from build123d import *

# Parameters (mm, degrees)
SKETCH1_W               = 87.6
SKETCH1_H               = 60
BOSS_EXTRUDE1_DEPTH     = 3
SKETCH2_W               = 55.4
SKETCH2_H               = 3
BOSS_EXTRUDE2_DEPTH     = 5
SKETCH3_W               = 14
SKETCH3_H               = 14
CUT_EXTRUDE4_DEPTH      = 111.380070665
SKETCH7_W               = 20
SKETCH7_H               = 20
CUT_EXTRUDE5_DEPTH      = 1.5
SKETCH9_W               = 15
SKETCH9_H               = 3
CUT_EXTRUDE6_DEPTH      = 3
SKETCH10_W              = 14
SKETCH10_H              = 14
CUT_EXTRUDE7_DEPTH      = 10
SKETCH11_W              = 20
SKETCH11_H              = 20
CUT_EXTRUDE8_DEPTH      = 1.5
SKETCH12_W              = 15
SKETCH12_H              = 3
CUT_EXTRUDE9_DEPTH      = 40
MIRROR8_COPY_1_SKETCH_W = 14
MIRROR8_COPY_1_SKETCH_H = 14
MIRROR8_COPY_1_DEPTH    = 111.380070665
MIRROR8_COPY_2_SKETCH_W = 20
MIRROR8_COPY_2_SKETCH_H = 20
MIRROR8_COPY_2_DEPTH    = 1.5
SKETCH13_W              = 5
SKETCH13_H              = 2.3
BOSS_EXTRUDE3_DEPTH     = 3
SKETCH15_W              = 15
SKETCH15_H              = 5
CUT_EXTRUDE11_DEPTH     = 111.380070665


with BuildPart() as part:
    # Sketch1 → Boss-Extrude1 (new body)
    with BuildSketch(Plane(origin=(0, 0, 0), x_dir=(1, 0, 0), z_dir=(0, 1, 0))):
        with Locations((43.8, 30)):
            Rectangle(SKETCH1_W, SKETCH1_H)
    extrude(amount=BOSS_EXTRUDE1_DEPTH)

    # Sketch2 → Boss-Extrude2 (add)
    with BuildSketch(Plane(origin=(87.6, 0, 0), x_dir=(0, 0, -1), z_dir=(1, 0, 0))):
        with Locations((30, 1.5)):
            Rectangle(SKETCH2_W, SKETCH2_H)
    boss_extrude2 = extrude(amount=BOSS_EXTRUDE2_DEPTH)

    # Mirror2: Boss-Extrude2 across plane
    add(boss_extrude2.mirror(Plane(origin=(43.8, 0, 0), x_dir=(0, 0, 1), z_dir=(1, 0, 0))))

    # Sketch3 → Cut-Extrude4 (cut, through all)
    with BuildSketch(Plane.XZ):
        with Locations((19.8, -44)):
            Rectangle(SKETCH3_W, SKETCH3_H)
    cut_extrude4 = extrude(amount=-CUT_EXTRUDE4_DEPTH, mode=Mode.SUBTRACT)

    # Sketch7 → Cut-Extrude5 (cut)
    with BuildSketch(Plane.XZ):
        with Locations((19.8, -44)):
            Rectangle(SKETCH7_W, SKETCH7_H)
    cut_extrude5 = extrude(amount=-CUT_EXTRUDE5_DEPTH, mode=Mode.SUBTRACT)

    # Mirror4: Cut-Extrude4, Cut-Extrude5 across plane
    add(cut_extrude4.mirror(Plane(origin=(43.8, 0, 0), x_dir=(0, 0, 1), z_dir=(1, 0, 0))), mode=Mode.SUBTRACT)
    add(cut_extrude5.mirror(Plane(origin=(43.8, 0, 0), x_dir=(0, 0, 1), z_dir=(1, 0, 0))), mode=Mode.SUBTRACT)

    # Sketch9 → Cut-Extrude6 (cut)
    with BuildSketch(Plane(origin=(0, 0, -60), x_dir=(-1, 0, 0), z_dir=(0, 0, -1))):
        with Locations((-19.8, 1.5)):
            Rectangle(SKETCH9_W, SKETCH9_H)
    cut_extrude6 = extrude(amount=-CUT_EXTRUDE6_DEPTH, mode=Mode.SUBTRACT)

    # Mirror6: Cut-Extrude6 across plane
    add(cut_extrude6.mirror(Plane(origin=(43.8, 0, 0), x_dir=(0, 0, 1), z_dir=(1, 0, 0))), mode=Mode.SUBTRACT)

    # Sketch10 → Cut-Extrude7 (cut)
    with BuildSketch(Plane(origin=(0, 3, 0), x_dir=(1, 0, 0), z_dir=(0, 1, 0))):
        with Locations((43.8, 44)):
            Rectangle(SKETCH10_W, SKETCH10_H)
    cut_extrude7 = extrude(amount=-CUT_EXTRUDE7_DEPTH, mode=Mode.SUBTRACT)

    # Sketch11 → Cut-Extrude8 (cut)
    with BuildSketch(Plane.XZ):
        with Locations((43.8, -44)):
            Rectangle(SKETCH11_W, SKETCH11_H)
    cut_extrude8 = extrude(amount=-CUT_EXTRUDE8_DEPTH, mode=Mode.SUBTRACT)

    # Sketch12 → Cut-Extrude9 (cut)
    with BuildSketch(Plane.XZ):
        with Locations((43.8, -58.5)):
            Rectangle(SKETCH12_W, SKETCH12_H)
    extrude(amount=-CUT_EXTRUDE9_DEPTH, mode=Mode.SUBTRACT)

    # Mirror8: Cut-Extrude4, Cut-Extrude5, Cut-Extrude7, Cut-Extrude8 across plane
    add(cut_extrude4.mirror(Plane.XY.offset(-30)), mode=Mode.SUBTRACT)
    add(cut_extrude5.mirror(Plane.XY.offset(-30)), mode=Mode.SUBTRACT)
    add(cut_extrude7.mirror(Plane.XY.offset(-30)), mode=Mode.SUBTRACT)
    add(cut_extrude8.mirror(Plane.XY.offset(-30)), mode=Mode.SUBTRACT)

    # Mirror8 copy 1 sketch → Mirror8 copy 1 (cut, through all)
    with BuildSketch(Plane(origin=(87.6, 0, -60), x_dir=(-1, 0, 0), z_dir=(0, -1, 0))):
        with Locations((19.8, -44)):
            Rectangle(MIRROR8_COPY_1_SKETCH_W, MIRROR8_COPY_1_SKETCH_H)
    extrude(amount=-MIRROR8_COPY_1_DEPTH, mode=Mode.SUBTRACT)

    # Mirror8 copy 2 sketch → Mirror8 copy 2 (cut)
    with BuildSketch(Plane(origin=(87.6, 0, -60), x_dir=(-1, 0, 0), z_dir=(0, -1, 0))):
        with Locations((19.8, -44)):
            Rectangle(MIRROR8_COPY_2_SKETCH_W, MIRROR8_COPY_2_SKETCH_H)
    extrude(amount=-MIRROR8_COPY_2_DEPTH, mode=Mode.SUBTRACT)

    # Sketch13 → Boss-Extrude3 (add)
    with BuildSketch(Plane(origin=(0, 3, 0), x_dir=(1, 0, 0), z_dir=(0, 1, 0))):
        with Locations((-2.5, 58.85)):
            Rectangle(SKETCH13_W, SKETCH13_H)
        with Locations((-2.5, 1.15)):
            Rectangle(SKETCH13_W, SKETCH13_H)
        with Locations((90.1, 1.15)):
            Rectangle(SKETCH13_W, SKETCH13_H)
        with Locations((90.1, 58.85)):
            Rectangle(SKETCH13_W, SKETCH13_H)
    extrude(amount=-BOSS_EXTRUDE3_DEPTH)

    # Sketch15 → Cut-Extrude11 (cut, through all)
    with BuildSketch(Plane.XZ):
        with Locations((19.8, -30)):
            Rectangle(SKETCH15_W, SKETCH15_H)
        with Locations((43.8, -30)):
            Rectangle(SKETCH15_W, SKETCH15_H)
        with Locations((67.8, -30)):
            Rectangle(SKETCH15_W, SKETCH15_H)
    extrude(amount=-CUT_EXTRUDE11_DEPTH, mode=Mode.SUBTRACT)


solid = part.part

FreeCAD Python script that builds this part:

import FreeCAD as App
import Part
import Sketcher

V = App.Vector
Q = App.Units.Quantity

doc = App.newDocument("Part")
body = doc.addObject("PartDesign::Body", "Body")

# Sketch on XZ plane
sketch1 = body.newObject("Sketcher::SketchObject", "Sketch")
sketch1.AttachmentSupport = (doc.getObject("XZ_Plane"), [""])
sketch1.MapMode = "FlatFace"
sketch1.addGeometry(Part.LineSegment(V(0, -60, 0), V(0, 0, 0)), False)
sketch1.addGeometry(Part.LineSegment(V(0, 0, 0), V(87.6, 0, 0)), False)
sketch1.addGeometry(Part.LineSegment(V(87.6, 0, 0), V(87.6, -60, 0)), False)
sketch1.addGeometry(Part.LineSegment(V(87.6, -60, 0), V(0, -60, 0)), False)
sketch1.addConstraint(Sketcher.Constraint("Coincident", 0, 2, 1, 1))
sketch1.addConstraint(Sketcher.Constraint("Coincident", 1, 2, 2, 1))
sketch1.addConstraint(Sketcher.Constraint("Coincident", 2, 2, 3, 1))
sketch1.addConstraint(Sketcher.Constraint("Coincident", 3, 2, 0, 1))
sketch1.addConstraint(Sketcher.Constraint("Vertical", 0))
sketch1.addConstraint(Sketcher.Constraint("Horizontal", 1))
sketch1.addConstraint(Sketcher.Constraint("Vertical", 2))
sketch1.addConstraint(Sketcher.Constraint("Horizontal", 3))
sketch1.addConstraint(Sketcher.Constraint("Coincident", 0, 2, -1, 1))
sketch1.addConstraint(Sketcher.Constraint("DistanceY", 0, 1, 0, 2, Q("60 mm")))
sketch1.addConstraint(Sketcher.Constraint("DistanceX", 1, 1, 1, 2, Q("87.6 mm")))
pad1 = body.newObject("PartDesign::Pad", "Pad")
pad1.Profile = sketch1
pad1.Length = 3
pad1.Reversed = True

# Sketch on YZ plane
sketch2 = body.newObject("Sketcher::SketchObject", "Sketch001")
sketch2.AttachmentSupport = (doc.getObject("YZ_Plane"), [""])
sketch2.MapMode = "FlatFace"
sketch2.AttachmentOffset = App.Placement(V(0, 0, 87.6), App.Rotation())
sketch2.addGeometry(Part.LineSegment(V(3, -2.3, 0), V(0, -2.3, 0)), False)
sketch2.addGeometry(Part.LineSegment(V(0, -2.3, 0), V(0, -57.7, 0)), False)
sketch2.addGeometry(Part.LineSegment(V(0, -57.7, 0), V(3, -57.7, 0)), False)
sketch2.addGeometry(Part.LineSegment(V(3, -57.7, 0), V(3, -2.3, 0)), False)
sketch2.addConstraint(Sketcher.Constraint("Coincident", 0, 2, 1, 1))
sketch2.addConstraint(Sketcher.Constraint("Coincident", 1, 2, 2, 1))
sketch2.addConstraint(Sketcher.Constraint("Coincident", 2, 2, 3, 1))
sketch2.addConstraint(Sketcher.Constraint("Coincident", 3, 2, 0, 1))
sketch2.addConstraint(Sketcher.Constraint("Horizontal", 0))
sketch2.addConstraint(Sketcher.Constraint("Vertical", 1))
sketch2.addConstraint(Sketcher.Constraint("Horizontal", 2))
sketch2.addConstraint(Sketcher.Constraint("Vertical", 3))
sketch2.addConstraint(Sketcher.Constraint("PointOnObject", 0, 2, -2))
sketch2.addConstraint(Sketcher.Constraint("DistanceX", 0, 2, 0, 1, Q("3 mm")))
sketch2.addConstraint(Sketcher.Constraint("DistanceY", 1, 2, 1, 1, Q("55.4 mm")))
sketch2.addConstraint(Sketcher.Constraint("DistanceY", 0, 2, -1, 1, Q("2.3 mm")))
pad2 = body.newObject("PartDesign::Pad", "Pad001")
pad2.Profile = sketch2
pad2.Length = 5
doc.recompute()

datumplane = body.newObject("PartDesign::Plane", "DatumPlane")
datumplane.AttachmentSupport = (doc.getObject("YZ_Plane"), [""])
datumplane.MapMode = "FlatFace"
datumplane.AttachmentOffset = App.Placement(V(0, 0, 43.8), App.Rotation())
mirrored = body.newObject("PartDesign::Mirrored", "Mirrored")
mirrored.Originals = [pad2]
mirrored.MirrorPlane = (datumplane, [""])
body.Tip = mirrored

# Sketch on XZ plane
sketch3 = body.newObject("Sketcher::SketchObject", "Sketch002")
sketch3.AttachmentSupport = (doc.getObject("XZ_Plane"), [""])
sketch3.MapMode = "FlatFace"
sketch3.addGeometry(Part.LineSegment(V(12.8, -37, 0), V(12.8, -51, 0)), False)
sketch3.addGeometry(Part.LineSegment(V(12.8, -51, 0), V(26.8, -51, 0)), False)
sketch3.addGeometry(Part.LineSegment(V(26.8, -51, 0), V(26.8, -37, 0)), False)
sketch3.addGeometry(Part.LineSegment(V(26.8, -37, 0), V(12.8, -37, 0)), False)
sketch3.addConstraint(Sketcher.Constraint("Coincident", 0, 2, 1, 1))
sketch3.addConstraint(Sketcher.Constraint("Coincident", 1, 2, 2, 1))
sketch3.addConstraint(Sketcher.Constraint("Coincident", 2, 2, 3, 1))
sketch3.addConstraint(Sketcher.Constraint("Coincident", 3, 2, 0, 1))
sketch3.addConstraint(Sketcher.Constraint("Vertical", 0))
sketch3.addConstraint(Sketcher.Constraint("Horizontal", 1))
sketch3.addConstraint(Sketcher.Constraint("Vertical", 2))
sketch3.addConstraint(Sketcher.Constraint("Horizontal", 3))
sketch3.addConstraint(Sketcher.Constraint("Equal", 3, 0))
sketch3.addConstraint(Sketcher.Constraint("DistanceX", 1, 1, 1, 2, Q("14 mm")))
sketch3.addConstraint(Sketcher.Constraint("DistanceY", 0, 2, -1, 1, Q("51 mm")))
sketch3.addConstraint(Sketcher.Constraint("DistanceX", -1, 1, 0, 2, Q("12.8 mm")))
pocket1 = body.newObject("PartDesign::Pocket", "Pocket")
pocket1.Profile = sketch3
pocket1.Type = "ThroughAll"

# Sketch on XZ plane
sketch4 = body.newObject("Sketcher::SketchObject", "Sketch003")
sketch4.AttachmentSupport = (doc.getObject("XZ_Plane"), [""])
sketch4.MapMode = "FlatFace"
sketch4.addGeometry(Part.LineSegment(V(9.8, -34, 0), V(9.8, -54, 0)), False)
sketch4.addGeometry(Part.LineSegment(V(9.8, -54, 0), V(29.8, -54, 0)), False)
sketch4.addGeometry(Part.LineSegment(V(29.8, -54, 0), V(29.8, -34, 0)), False)
sketch4.addGeometry(Part.LineSegment(V(29.8, -34, 0), V(9.8, -34, 0)), False)
sketch4.addConstraint(Sketcher.Constraint("Coincident", 0, 2, 1, 1))
sketch4.addConstraint(Sketcher.Constraint("Coincident", 1, 2, 2, 1))
sketch4.addConstraint(Sketcher.Constraint("Coincident", 2, 2, 3, 1))
sketch4.addConstraint(Sketcher.Constraint("Coincident", 3, 2, 0, 1))
sketch4.addConstraint(Sketcher.Constraint("Vertical", 0))
sketch4.addConstraint(Sketcher.Constraint("Horizontal", 1))
sketch4.addConstraint(Sketcher.Constraint("Vertical", 2))
sketch4.addConstraint(Sketcher.Constraint("Horizontal", 3))
sketch4.addConstraint(Sketcher.Constraint("Equal", 3, 0))
sketch4.addConstraint(Sketcher.Constraint("DistanceX", 1, 1, 1, 2, Q("20 mm")))
sketch4.addConstraint(Sketcher.Constraint("DistanceY", 0, 2, -1, 1, Q("54 mm")))
sketch4.addConstraint(Sketcher.Constraint("DistanceX", -1, 1, 0, 2, Q("9.8 mm")))
pocket2 = body.newObject("PartDesign::Pocket", "Pocket001")
pocket2.Profile = sketch4
pocket2.Length = 1.5
doc.recompute()

datumplane2 = body.newObject("PartDesign::Plane", "DatumPlane001")
datumplane2.AttachmentSupport = (doc.getObject("YZ_Plane"), [""])
datumplane2.MapMode = "FlatFace"
datumplane2.AttachmentOffset = App.Placement(V(0, 0, 43.8), App.Rotation())
mirrored2 = body.newObject("PartDesign::Mirrored", "Mirrored001")
mirrored2.Originals = [pocket1, pocket2]
mirrored2.MirrorPlane = (datumplane2, [""])
body.Tip = mirrored2

# Sketch on XY plane
sketch5 = body.newObject("Sketcher::SketchObject", "Sketch004")
sketch5.AttachmentSupport = (doc.getObject("XY_Plane"), [""])
sketch5.MapMode = "FlatFace"
sketch5.AttachmentOffset = App.Placement(V(0, 0, -60), App.Rotation())
sketch5.addGeometry(Part.LineSegment(V(27.3, 3, 0), V(27.3, 0, 0)), False)
sketch5.addGeometry(Part.LineSegment(V(27.3, 0, 0), V(12.3, 0, 0)), False)
sketch5.addGeometry(Part.LineSegment(V(12.3, 0, 0), V(12.3, 3, 0)), False)
sketch5.addGeometry(Part.LineSegment(V(12.3, 3, 0), V(27.3, 3, 0)), False)
sketch5.addConstraint(Sketcher.Constraint("Coincident", 0, 2, 1, 1))
sketch5.addConstraint(Sketcher.Constraint("Coincident", 1, 2, 2, 1))
sketch5.addConstraint(Sketcher.Constraint("Coincident", 2, 2, 3, 1))
sketch5.addConstraint(Sketcher.Constraint("Coincident", 3, 2, 0, 1))
sketch5.addConstraint(Sketcher.Constraint("Vertical", 0))
sketch5.addConstraint(Sketcher.Constraint("Horizontal", 1))
sketch5.addConstraint(Sketcher.Constraint("Vertical", 2))
sketch5.addConstraint(Sketcher.Constraint("Horizontal", 3))
sketch5.addConstraint(Sketcher.Constraint("PointOnObject", 0, 2, -1))
sketch5.addConstraint(Sketcher.Constraint("DistanceX", 1, 2, 1, 1, Q("15 mm")))
sketch5.addConstraint(Sketcher.Constraint("DistanceY", 0, 2, 0, 1, Q("3 mm")))
sketch5.addConstraint(Sketcher.Constraint("DistanceX", -1, 1, 0, 2, Q("27.3 mm")))
pocket3 = body.newObject("PartDesign::Pocket", "Pocket002")
pocket3.Profile = sketch5
pocket3.Length = 3
pocket3.Reversed = True
doc.recompute()

datumplane3 = body.newObject("PartDesign::Plane", "DatumPlane002")
datumplane3.AttachmentSupport = (doc.getObject("YZ_Plane"), [""])
datumplane3.MapMode = "FlatFace"
datumplane3.AttachmentOffset = App.Placement(V(0, 0, 43.8), App.Rotation())
mirrored3 = body.newObject("PartDesign::Mirrored", "Mirrored002")
mirrored3.Originals = [pocket3]
mirrored3.MirrorPlane = (datumplane3, [""])
body.Tip = mirrored3

# Sketch on XZ plane
sketch6 = body.newObject("Sketcher::SketchObject", "Sketch005")
sketch6.AttachmentSupport = (doc.getObject("XZ_Plane"), [""])
sketch6.MapMode = "FlatFace"
sketch6.AttachmentOffset = App.Placement(V(0, 0, -3), App.Rotation())
sketch6.addGeometry(Part.LineSegment(V(36.8, -51, 0), V(36.8, -37, 0)), False)
sketch6.addGeometry(Part.LineSegment(V(36.8, -37, 0), V(50.8, -37, 0)), False)
sketch6.addGeometry(Part.LineSegment(V(50.8, -37, 0), V(50.8, -51, 0)), False)
sketch6.addGeometry(Part.LineSegment(V(50.8, -51, 0), V(36.8, -51, 0)), False)
sketch6.addConstraint(Sketcher.Constraint("Coincident", 0, 2, 1, 1))
sketch6.addConstraint(Sketcher.Constraint("Coincident", 1, 2, 2, 1))
sketch6.addConstraint(Sketcher.Constraint("Coincident", 2, 2, 3, 1))
sketch6.addConstraint(Sketcher.Constraint("Coincident", 3, 2, 0, 1))
sketch6.addConstraint(Sketcher.Constraint("Vertical", 0))
sketch6.addConstraint(Sketcher.Constraint("Horizontal", 1))
sketch6.addConstraint(Sketcher.Constraint("Vertical", 2))
sketch6.addConstraint(Sketcher.Constraint("Horizontal", 3))
sketch6.addConstraint(Sketcher.Constraint("Equal", 3, 0))
sketch6.addConstraint(Sketcher.Constraint("DistanceX", 1, 1, 1, 2, Q("14 mm")))
sketch6.addConstraint(Sketcher.Constraint("DistanceY", 0, 2, -1, 1, Q("37 mm")))
sketch6.addConstraint(Sketcher.Constraint("DistanceX", -1, 1, 0, 2, Q("36.8 mm")))
pocket4 = body.newObject("PartDesign::Pocket", "Pocket003")
pocket4.Profile = sketch6
pocket4.Length = 10
pocket4.Reversed = True

# Sketch on XZ plane
sketch7 = body.newObject("Sketcher::SketchObject", "Sketch006")
sketch7.AttachmentSupport = (doc.getObject("XZ_Plane"), [""])
sketch7.MapMode = "FlatFace"
sketch7.addGeometry(Part.LineSegment(V(33.8, -34, 0), V(33.8, -54, 0)), False)
sketch7.addGeometry(Part.LineSegment(V(33.8, -54, 0), V(53.8, -54, 0)), False)
sketch7.addGeometry(Part.LineSegment(V(53.8, -54, 0), V(53.8, -34, 0)), False)
sketch7.addGeometry(Part.LineSegment(V(53.8, -34, 0), V(33.8, -34, 0)), False)
sketch7.addConstraint(Sketcher.Constraint("Coincident", 0, 2, 1, 1))
sketch7.addConstraint(Sketcher.Constraint("Coincident", 1, 2, 2, 1))
sketch7.addConstraint(Sketcher.Constraint("Coincident", 2, 2, 3, 1))
sketch7.addConstraint(Sketcher.Constraint("Coincident", 3, 2, 0, 1))
sketch7.addConstraint(Sketcher.Constraint("Vertical", 0))
sketch7.addConstraint(Sketcher.Constraint("Horizontal", 1))
sketch7.addConstraint(Sketcher.Constraint("Vertical", 2))
sketch7.addConstraint(Sketcher.Constraint("Horizontal", 3))
sketch7.addConstraint(Sketcher.Constraint("Equal", 3, 0))
sketch7.addConstraint(Sketcher.Constraint("DistanceX", 1, 1, 1, 2, Q("20 mm")))
sketch7.addConstraint(Sketcher.Constraint("DistanceY", 0, 2, -1, 1, Q("54 mm")))
sketch7.addConstraint(Sketcher.Constraint("DistanceX", -1, 1, 0, 2, Q("33.8 mm")))
pocket5 = body.newObject("PartDesign::Pocket", "Pocket004")
pocket5.Profile = sketch7
pocket5.Length = 1.5

# Sketch on XZ plane
sketch8 = body.newObject("Sketcher::SketchObject", "Sketch007")
sketch8.AttachmentSupport = (doc.getObject("XZ_Plane"), [""])
sketch8.MapMode = "FlatFace"
sketch8.addGeometry(Part.LineSegment(V(36.3, -57, 0), V(36.3, -60, 0)), False)
sketch8.addGeometry(Part.LineSegment(V(36.3, -60, 0), V(51.3, -60, 0)), False)
sketch8.addGeometry(Part.LineSegment(V(51.3, -60, 0), V(51.3, -57, 0)), False)
sketch8.addGeometry(Part.LineSegment(V(51.3, -57, 0), V(36.3, -57, 0)), False)
sketch8.addConstraint(Sketcher.Constraint("Coincident", 0, 2, 1, 1))
sketch8.addConstraint(Sketcher.Constraint("Coincident", 1, 2, 2, 1))
sketch8.addConstraint(Sketcher.Constraint("Coincident", 2, 2, 3, 1))
sketch8.addConstraint(Sketcher.Constraint("Coincident", 3, 2, 0, 1))
sketch8.addConstraint(Sketcher.Constraint("Vertical", 0))
sketch8.addConstraint(Sketcher.Constraint("Horizontal", 1))
sketch8.addConstraint(Sketcher.Constraint("Vertical", 2))
sketch8.addConstraint(Sketcher.Constraint("Horizontal", 3))
sketch8.addConstraint(Sketcher.Constraint("DistanceX", 1, 1, 1, 2, Q("15 mm")))
sketch8.addConstraint(Sketcher.Constraint("DistanceY", 0, 2, 0, 1, Q("3 mm")))
sketch8.addConstraint(Sketcher.Constraint("DistanceY", 0, 2, -1, 1, Q("60 mm")))
sketch8.addConstraint(Sketcher.Constraint("DistanceX", -1, 1, 0, 2, Q("36.3 mm")))
pocket6 = body.newObject("PartDesign::Pocket", "Pocket005")
pocket6.Profile = sketch8
pocket6.Length = 40
doc.recompute()

datumplane4 = body.newObject("PartDesign::Plane", "DatumPlane003")
datumplane4.AttachmentSupport = (doc.getObject("XY_Plane"), [""])
datumplane4.MapMode = "FlatFace"
datumplane4.AttachmentOffset = App.Placement(V(0, 0, -30), App.Rotation())
mirrored4 = body.newObject("PartDesign::Mirrored", "Mirrored003")
mirrored4.Originals = [pocket1, pocket2, pocket4, pocket5]
mirrored4.MirrorPlane = (datumplane4, [""])
body.Tip = mirrored4

# Sketch on XZ plane
sketch9 = body.newObject("Sketcher::SketchObject", "Sketch008")
sketch9.AttachmentSupport = (doc.getObject("XZ_Plane"), [""])
sketch9.MapMode = "FlatFace"
sketch9.addGeometry(Part.LineSegment(V(74.8, -23, 0), V(74.8, -9, 0)), False)
sketch9.addGeometry(Part.LineSegment(V(74.8, -9, 0), V(60.8, -9, 0)), False)
sketch9.addGeometry(Part.LineSegment(V(60.8, -9, 0), V(60.8, -23, 0)), False)
sketch9.addGeometry(Part.LineSegment(V(60.8, -23, 0), V(74.8, -23, 0)), False)
sketch9.addConstraint(Sketcher.Constraint("Coincident", 0, 2, 1, 1))
sketch9.addConstraint(Sketcher.Constraint("Coincident", 1, 2, 2, 1))
sketch9.addConstraint(Sketcher.Constraint("Coincident", 2, 2, 3, 1))
sketch9.addConstraint(Sketcher.Constraint("Coincident", 3, 2, 0, 1))
sketch9.addConstraint(Sketcher.Constraint("Vertical", 0))
sketch9.addConstraint(Sketcher.Constraint("Horizontal", 1))
sketch9.addConstraint(Sketcher.Constraint("Vertical", 2))
sketch9.addConstraint(Sketcher.Constraint("Horizontal", 3))
sketch9.addConstraint(Sketcher.Constraint("Equal", 3, 0))
sketch9.addConstraint(Sketcher.Constraint("DistanceX", 1, 2, 1, 1, Q("14 mm")))
sketch9.addConstraint(Sketcher.Constraint("DistanceY", 0, 2, -1, 1, Q("9 mm")))
sketch9.addConstraint(Sketcher.Constraint("DistanceX", -1, 1, 0, 2, Q("74.8 mm")))
pocket7 = body.newObject("PartDesign::Pocket", "Pocket006")
pocket7.Profile = sketch9
pocket7.Type = "ThroughAll"

# Sketch on XZ plane
sketch10 = body.newObject("Sketcher::SketchObject", "Sketch009")
sketch10.AttachmentSupport = (doc.getObject("XZ_Plane"), [""])
sketch10.MapMode = "FlatFace"
sketch10.addGeometry(Part.LineSegment(V(77.8, -26, 0), V(77.8, -6, 0)), False)
sketch10.addGeometry(Part.LineSegment(V(77.8, -6, 0), V(57.8, -6, 0)), False)
sketch10.addGeometry(Part.LineSegment(V(57.8, -6, 0), V(57.8, -26, 0)), False)
sketch10.addGeometry(Part.LineSegment(V(57.8, -26, 0), V(77.8, -26, 0)), False)
sketch10.addConstraint(Sketcher.Constraint("Coincident", 0, 2, 1, 1))
sketch10.addConstraint(Sketcher.Constraint("Coincident", 1, 2, 2, 1))
sketch10.addConstraint(Sketcher.Constraint("Coincident", 2, 2, 3, 1))
sketch10.addConstraint(Sketcher.Constraint("Coincident", 3, 2, 0, 1))
sketch10.addConstraint(Sketcher.Constraint("Vertical", 0))
sketch10.addConstraint(Sketcher.Constraint("Horizontal", 1))
sketch10.addConstraint(Sketcher.Constraint("Vertical", 2))
sketch10.addConstraint(Sketcher.Constraint("Horizontal", 3))
sketch10.addConstraint(Sketcher.Constraint("Equal", 3, 0))
sketch10.addConstraint(Sketcher.Constraint("DistanceX", 1, 2, 1, 1, Q("20 mm")))
sketch10.addConstraint(Sketcher.Constraint("DistanceY", 0, 2, -1, 1, Q("6 mm")))
sketch10.addConstraint(Sketcher.Constraint("DistanceX", -1, 1, 0, 2, Q("77.8 mm")))
pocket8 = body.newObject("PartDesign::Pocket", "Pocket007")
pocket8.Profile = sketch10
pocket8.Length = 1.5

# Sketch on XZ plane
sketch11 = body.newObject("Sketcher::SketchObject", "Sketch010")
sketch11.AttachmentSupport = (doc.getObject("XZ_Plane"), [""])
sketch11.MapMode = "FlatFace"
sketch11.AttachmentOffset = App.Placement(V(0, 0, -3), App.Rotation())
sketch11.addGeometry(Part.LineSegment(V(-5, -60, 0), V(-5, -57.7, 0)), False)
sketch11.addGeometry(Part.LineSegment(V(-5, -57.7, 0), V(0, -57.7, 0)), False)
sketch11.addGeometry(Part.LineSegment(V(0, -57.7, 0), V(0, -60, 0)), False)
sketch11.addGeometry(Part.LineSegment(V(0, -60, 0), V(-5, -60, 0)), False)
sketch11.addGeometry(Part.LineSegment(V(-5, -2.3, 0), V(-5, 0, 0)), False)
sketch11.addGeometry(Part.LineSegment(V(-5, 0, 0), V(0, 0, 0)), False)
sketch11.addGeometry(Part.LineSegment(V(0, 0, 0), V(0, -2.3, 0)), False)
sketch11.addGeometry(Part.LineSegment(V(0, -2.3, 0), V(-5, -2.3, 0)), False)
sketch11.addGeometry(Part.LineSegment(V(87.6, -2.3, 0), V(87.6, 0, 0)), False)
sketch11.addGeometry(Part.LineSegment(V(87.6, 0, 0), V(92.6, 0, 0)), False)
sketch11.addGeometry(Part.LineSegment(V(92.6, 0, 0), V(92.6, -2.3, 0)), False)
sketch11.addGeometry(Part.LineSegment(V(92.6, -2.3, 0), V(87.6, -2.3, 0)), False)
sketch11.addGeometry(Part.LineSegment(V(87.6, -60, 0), V(87.6, -57.7, 0)), False)
sketch11.addGeometry(Part.LineSegment(V(87.6, -57.7, 0), V(92.6, -57.7, 0)), False)
sketch11.addGeometry(Part.LineSegment(V(92.6, -57.7, 0), V(92.6, -60, 0)), False)
sketch11.addGeometry(Part.LineSegment(V(92.6, -60, 0), V(87.6, -60, 0)), False)
sketch11.addConstraint(Sketcher.Constraint("Coincident", 0, 2, 1, 1))
sketch11.addConstraint(Sketcher.Constraint("Coincident", 1, 2, 2, 1))
sketch11.addConstraint(Sketcher.Constraint("Coincident", 2, 2, 3, 1))
sketch11.addConstraint(Sketcher.Constraint("Coincident", 3, 2, 0, 1))
sketch11.addConstraint(Sketcher.Constraint("Coincident", 4, 2, 5, 1))
sketch11.addConstraint(Sketcher.Constraint("Coincident", 5, 2, 6, 1))
sketch11.addConstraint(Sketcher.Constraint("Coincident", 6, 2, 7, 1))
sketch11.addConstraint(Sketcher.Constraint("Coincident", 7, 2, 4, 1))
sketch11.addConstraint(Sketcher.Constraint("Coincident", 8, 2, 9, 1))
sketch11.addConstraint(Sketcher.Constraint("Coincident", 9, 2, 10, 1))
sketch11.addConstraint(Sketcher.Constraint("Coincident", 10, 2, 11, 1))
sketch11.addConstraint(Sketcher.Constraint("Coincident", 11, 2, 8, 1))
sketch11.addConstraint(Sketcher.Constraint("Coincident", 12, 2, 13, 1))
sketch11.addConstraint(Sketcher.Constraint("Coincident", 13, 2, 14, 1))
sketch11.addConstraint(Sketcher.Constraint("Coincident", 14, 2, 15, 1))
sketch11.addConstraint(Sketcher.Constraint("Coincident", 15, 2, 12, 1))
sketch11.addConstraint(Sketcher.Constraint("Vertical", 0))
sketch11.addConstraint(Sketcher.Constraint("Horizontal", 1))
sketch11.addConstraint(Sketcher.Constraint("Vertical", 2))
sketch11.addConstraint(Sketcher.Constraint("Horizontal", 3))
sketch11.addConstraint(Sketcher.Constraint("Vertical", 4))
sketch11.addConstraint(Sketcher.Constraint("Horizontal", 5))
sketch11.addConstraint(Sketcher.Constraint("Vertical", 6))
sketch11.addConstraint(Sketcher.Constraint("Horizontal", 7))
sketch11.addConstraint(Sketcher.Constraint("Vertical", 8))
sketch11.addConstraint(Sketcher.Constraint("Horizontal", 9))
sketch11.addConstraint(Sketcher.Constraint("Vertical", 10))
sketch11.addConstraint(Sketcher.Constraint("Horizontal", 11))
sketch11.addConstraint(Sketcher.Constraint("Vertical", 12))
sketch11.addConstraint(Sketcher.Constraint("Horizontal", 13))
sketch11.addConstraint(Sketcher.Constraint("Vertical", 14))
sketch11.addConstraint(Sketcher.Constraint("Horizontal", 15))
sketch11.addConstraint(Sketcher.Constraint("Coincident", 5, 2, -1, 1))
sketch11.addConstraint(Sketcher.Constraint("PointOnObject", 1, 2, -2))
sketch11.addConstraint(Sketcher.Constraint("PointOnObject", 8, 2, -1))
sketch11.addConstraint(Sketcher.Constraint("Horizontal", 7, 2, 10, 2))
sketch11.addConstraint(Sketcher.Constraint("Horizontal", 1, 2, 12, 2))
sketch11.addConstraint(Sketcher.Constraint("Horizontal", 3, 2, 14, 2))
sketch11.addConstraint(Sketcher.Constraint("Vertical", 3, 2, 4, 2))
sketch11.addConstraint(Sketcher.Constraint("Vertical", 11, 2, 12, 2))
sketch11.addConstraint(Sketcher.Constraint("Vertical", 10, 2, 13, 2))
sketch11.addConstraint(Sketcher.Constraint("Equal", 7, 9))
sketch11.addConstraint(Sketcher.Constraint("Equal", 2, 4))
sketch11.addConstraint(Sketcher.Constraint("DistanceX", 1, 1, 1, 2, Q("5 mm")))
sketch11.addConstraint(Sketcher.Constraint("DistanceY", 0, 1, 0, 2, Q("2.3 mm")))
sketch11.addConstraint(Sketcher.Constraint("DistanceY", 2, 2, -1, 1, Q("60 mm")))
sketch11.addConstraint(Sketcher.Constraint("DistanceX", -1, 1, 8, 2, Q("87.6 mm")))
pad3 = body.newObject("PartDesign::Pad", "Pad002")
pad3.Profile = sketch11
pad3.Length = 3

# Sketch on XZ plane
sketch12 = body.newObject("Sketcher::SketchObject", "Sketch011")
sketch12.AttachmentSupport = (doc.getObject("XZ_Plane"), [""])
sketch12.MapMode = "FlatFace"
sketch12.addGeometry(Part.LineSegment(V(12.3, -27.5, 0), V(12.3, -32.5, 0)), False)
sketch12.addGeometry(Part.LineSegment(V(12.3, -32.5, 0), V(27.3, -32.5, 0)), False)
sketch12.addGeometry(Part.LineSegment(V(27.3, -32.5, 0), V(27.3, -27.5, 0)), False)
sketch12.addGeometry(Part.LineSegment(V(27.3, -27.5, 0), V(12.3, -27.5, 0)), False)
sketch12.addGeometry(Part.LineSegment(V(36.3, -27.5, 0), V(36.3, -32.5, 0)), False)
sketch12.addGeometry(Part.LineSegment(V(36.3, -32.5, 0), V(51.3, -32.5, 0)), False)
sketch12.addGeometry(Part.LineSegment(V(51.3, -32.5, 0), V(51.3, -27.5, 0)), False)
sketch12.addGeometry(Part.LineSegment(V(51.3, -27.5, 0), V(36.3, -27.5, 0)), False)
sketch12.addGeometry(Part.LineSegment(V(60.3, -27.5, 0), V(60.3, -32.5, 0)), False)
sketch12.addGeometry(Part.LineSegment(V(60.3, -32.5, 0), V(75.3, -32.5, 0)), False)
sketch12.addGeometry(Part.LineSegment(V(75.3, -32.5, 0), V(75.3, -27.5, 0)), False)
sketch12.addGeometry(Part.LineSegment(V(75.3, -27.5, 0), V(60.3, -27.5, 0)), False)
sketch12.addConstraint(Sketcher.Constraint("Coincident", 0, 2, 1, 1))
sketch12.addConstraint(Sketcher.Constraint("Coincident", 1, 2, 2, 1))
sketch12.addConstraint(Sketcher.Constraint("Coincident", 2, 2, 3, 1))
sketch12.addConstraint(Sketcher.Constraint("Coincident", 3, 2, 0, 1))
sketch12.addConstraint(Sketcher.Constraint("Coincident", 4, 2, 5, 1))
sketch12.addConstraint(Sketcher.Constraint("Coincident", 5, 2, 6, 1))
sketch12.addConstraint(Sketcher.Constraint("Coincident", 6, 2, 7, 1))
sketch12.addConstraint(Sketcher.Constraint("Coincident", 7, 2, 4, 1))
sketch12.addConstraint(Sketcher.Constraint("Coincident", 8, 2, 9, 1))
sketch12.addConstraint(Sketcher.Constraint("Coincident", 9, 2, 10, 1))
sketch12.addConstraint(Sketcher.Constraint("Coincident", 10, 2, 11, 1))
sketch12.addConstraint(Sketcher.Constraint("Coincident", 11, 2, 8, 1))
sketch12.addConstraint(Sketcher.Constraint("Vertical", 0))
sketch12.addConstraint(Sketcher.Constraint("Horizontal", 1))
sketch12.addConstraint(Sketcher.Constraint("Vertical", 2))
sketch12.addConstraint(Sketcher.Constraint("Horizontal", 3))
sketch12.addConstraint(Sketcher.Constraint("Vertical", 4))
sketch12.addConstraint(Sketcher.Constraint("Horizontal", 5))
sketch12.addConstraint(Sketcher.Constraint("Vertical", 6))
sketch12.addConstraint(Sketcher.Constraint("Horizontal", 7))
sketch12.addConstraint(Sketcher.Constraint("Vertical", 8))
sketch12.addConstraint(Sketcher.Constraint("Horizontal", 9))
sketch12.addConstraint(Sketcher.Constraint("Vertical", 10))
sketch12.addConstraint(Sketcher.Constraint("Horizontal", 11))
sketch12.addConstraint(Sketcher.Constraint("Horizontal", 1, 2, 4, 2))
sketch12.addConstraint(Sketcher.Constraint("Horizontal", 3, 2, 6, 2))
sketch12.addConstraint(Sketcher.Constraint("Horizontal", 5, 2, 8, 2))
sketch12.addConstraint(Sketcher.Constraint("Horizontal", 7, 2, 10, 2))
sketch12.addConstraint(Sketcher.Constraint("Equal", 3, 5))
sketch12.addConstraint(Sketcher.Constraint("Equal", 7, 9))
sketch12.addConstraint(Sketcher.Constraint("DistanceX", 1, 1, 1, 2, Q("15 mm")))
sketch12.addConstraint(Sketcher.Constraint("DistanceY", 0, 2, 0, 1, Q("5 mm")))
sketch12.addConstraint(Sketcher.Constraint("DistanceX", 1, 2, 4, 2, Q("9 mm")))
sketch12.addConstraint(Sketcher.Constraint("DistanceX", 5, 2, 8, 2, Q("9 mm")))
sketch12.addConstraint(Sketcher.Constraint("DistanceX", -1, 1, 0, 2, Q("12.3 mm")))
sketch12.addConstraint(Sketcher.Constraint("DistanceY", 0, 2, -1, 1, Q("32.5 mm")))
pocket9 = body.newObject("PartDesign::Pocket", "Pocket008")
pocket9.Profile = sketch12
pocket9.Type = "ThroughAll"

doc.recompute()
